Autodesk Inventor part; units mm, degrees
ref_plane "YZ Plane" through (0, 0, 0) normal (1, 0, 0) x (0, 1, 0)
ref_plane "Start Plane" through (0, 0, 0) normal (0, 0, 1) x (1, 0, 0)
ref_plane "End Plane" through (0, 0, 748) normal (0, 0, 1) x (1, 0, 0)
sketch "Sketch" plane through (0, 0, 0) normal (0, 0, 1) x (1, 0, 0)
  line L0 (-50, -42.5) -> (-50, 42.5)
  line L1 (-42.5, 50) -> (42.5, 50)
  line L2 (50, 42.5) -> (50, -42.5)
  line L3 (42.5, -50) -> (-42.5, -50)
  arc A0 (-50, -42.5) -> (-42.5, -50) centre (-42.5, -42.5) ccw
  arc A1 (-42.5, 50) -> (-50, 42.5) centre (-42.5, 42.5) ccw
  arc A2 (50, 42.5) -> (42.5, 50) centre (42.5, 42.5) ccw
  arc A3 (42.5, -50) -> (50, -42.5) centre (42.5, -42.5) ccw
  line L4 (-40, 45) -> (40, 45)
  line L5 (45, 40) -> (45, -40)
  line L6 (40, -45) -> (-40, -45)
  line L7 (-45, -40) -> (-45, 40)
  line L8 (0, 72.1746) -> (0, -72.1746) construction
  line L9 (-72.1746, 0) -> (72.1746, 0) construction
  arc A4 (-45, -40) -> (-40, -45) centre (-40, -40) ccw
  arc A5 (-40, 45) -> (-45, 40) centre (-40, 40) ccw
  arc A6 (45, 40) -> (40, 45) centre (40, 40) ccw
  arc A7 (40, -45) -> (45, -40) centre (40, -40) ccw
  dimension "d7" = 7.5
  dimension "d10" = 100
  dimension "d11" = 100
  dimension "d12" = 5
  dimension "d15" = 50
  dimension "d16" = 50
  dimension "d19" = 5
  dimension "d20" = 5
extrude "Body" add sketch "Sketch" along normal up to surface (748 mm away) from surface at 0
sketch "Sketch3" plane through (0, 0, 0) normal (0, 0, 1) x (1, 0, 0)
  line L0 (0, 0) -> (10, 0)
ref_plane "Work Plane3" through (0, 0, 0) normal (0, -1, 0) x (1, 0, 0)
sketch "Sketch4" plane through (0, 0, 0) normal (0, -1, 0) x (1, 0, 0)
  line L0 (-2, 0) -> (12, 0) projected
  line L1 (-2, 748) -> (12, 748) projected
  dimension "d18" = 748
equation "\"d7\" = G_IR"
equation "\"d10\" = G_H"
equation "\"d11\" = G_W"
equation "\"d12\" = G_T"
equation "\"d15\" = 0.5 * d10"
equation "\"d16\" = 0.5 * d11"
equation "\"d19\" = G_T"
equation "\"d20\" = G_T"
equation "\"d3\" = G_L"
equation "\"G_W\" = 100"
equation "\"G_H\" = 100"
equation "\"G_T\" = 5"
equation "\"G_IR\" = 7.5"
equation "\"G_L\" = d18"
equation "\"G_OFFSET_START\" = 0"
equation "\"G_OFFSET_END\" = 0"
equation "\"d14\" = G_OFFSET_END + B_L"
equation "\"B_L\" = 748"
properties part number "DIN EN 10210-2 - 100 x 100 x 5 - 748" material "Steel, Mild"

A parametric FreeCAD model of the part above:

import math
import FreeCAD as App
import Part
import Sketcher
from FreeCAD import Vector

doc = App.newDocument("Part")
body = doc.addObject("PartDesign::Body", "Body")

# Sketch on XY plane
sketch1 = body.newObject("Sketcher::SketchObject", "Sketch")
sketch1.AttachmentSupport = (doc.getObject("XY_Plane"), [""])
sketch1.MapMode = "FlatFace"
sketch1.addGeometry(Part.LineSegment(Vector(-50, 42.5, 0), Vector(-50, -42.5, 0)), False)
sketch1.addGeometry(Part.ArcOfCircle(Part.Circle(Vector(-42.5, -42.5, 0), Vector(0, 0, 1), 7.5), math.radians(180), math.radians(270)), False)
sketch1.addGeometry(Part.LineSegment(Vector(-42.5, -50, 0), Vector(42.5, -50, 0)), False)
sketch1.addGeometry(Part.ArcOfCircle(Part.Circle(Vector(42.5, -42.5, 0), Vector(0, 0, 1), 7.5), math.radians(-90), math.radians(0)), False)
sketch1.addGeometry(Part.LineSegment(Vector(50, -42.5, 0), Vector(50, 42.5, 0)), False)
sketch1.addGeometry(Part.ArcOfCircle(Part.Circle(Vector(42.5, 42.5, 0), Vector(0, 0, 1), 7.5), math.radians(0), math.radians(90)), False)
sketch1.addGeometry(Part.LineSegment(Vector(42.5, 50, 0), Vector(-42.5, 50, 0)), False)
sketch1.addGeometry(Part.ArcOfCircle(Part.Circle(Vector(-42.5, 42.5, 0), Vector(0, 0, 1), 7.5), math.radians(90), math.radians(180)), False)
sketch1.addGeometry(Part.ArcOfCircle(Part.Circle(Vector(-40, 40, 0), Vector(0, 0, 1), 5), math.radians(90), math.radians(180)), False)
sketch1.addGeometry(Part.LineSegment(Vector(-40, 45, 0), Vector(40, 45, 0)), False)
sketch1.addGeometry(Part.ArcOfCircle(Part.Circle(Vector(40, 40, 0), Vector(0, 0, 1), 5), math.radians(0), math.radians(90)), False)
sketch1.addGeometry(Part.LineSegment(Vector(45, 40, 0), Vector(45, -40, 0)), False)
sketch1.addGeometry(Part.ArcOfCircle(Part.Circle(Vector(40, -40, 0), Vector(0, 0, 1), 5), math.radians(-90), math.radians(0)), False)
sketch1.addGeometry(Part.LineSegment(Vector(40, -45, 0), Vector(-40, -45, 0)), False)
sketch1.addGeometry(Part.ArcOfCircle(Part.Circle(Vector(-40, -40, 0), Vector(0, 0, 1), 5), math.radians(180), math.radians(270)), False)
sketch1.addGeometry(Part.LineSegment(Vector(-45, -40, 0), Vector(-45, 40, 0)), False)
sketch1.addConstraint(Sketcher.Constraint("Tangent", 0, 2, 1, 1))
sketch1.addConstraint(Sketcher.Constraint("Tangent", 1, 2, 2, 1))
sketch1.addConstraint(Sketcher.Constraint("Tangent", 2, 2, 3, 1))
sketch1.addConstraint(Sketcher.Constraint("Tangent", 3, 2, 4, 1))
sketch1.addConstraint(Sketcher.Constraint("Tangent", 4, 2, 5, 1))
sketch1.addConstraint(Sketcher.Constraint("Tangent", 5, 2, 6, 1))
sketch1.addConstraint(Sketcher.Constraint("Tangent", 6, 2, 7, 1))
sketch1.addConstraint(Sketcher.Constraint("Tangent", 7, 2, 0, 1))
sketch1.addConstraint(Sketcher.Constraint("Tangent", 8, 1, 9, 1))
sketch1.addConstraint(Sketcher.Constraint("Tangent", 9, 2, 10, 2))
sketch1.addConstraint(Sketcher.Constraint("Tangent", 10, 1, 11, 1))
sketch1.addConstraint(Sketcher.Constraint("Tangent", 11, 2, 12, 2))
sketch1.addConstraint(Sketcher.Constraint("Tangent", 12, 1, 13, 1))
sketch1.addConstraint(Sketcher.Constraint("Tangent", 13, 2, 14, 2))
sketch1.addConstraint(Sketcher.Constraint("Tangent", 14, 1, 15, 1))
sketch1.addConstraint(Sketcher.Constraint("Tangent", 15, 2, 8, 2))
sketch1.addConstraint(Sketcher.Constraint("Vertical", 0))
sketch1.addConstraint(Sketcher.Constraint("Horizontal", 2))
sketch1.addConstraint(Sketcher.Constraint("Vertical", 4))
sketch1.addConstraint(Sketcher.Constraint("Horizontal", 6))
sketch1.addConstraint(Sketcher.Constraint("Horizontal", 9))
sketch1.addConstraint(Sketcher.Constraint("Vertical", 11))
sketch1.addConstraint(Sketcher.Constraint("Horizontal", 13))
sketch1.addConstraint(Sketcher.Constraint("Vertical", 15))
sketch1.addConstraint(Sketcher.Constraint("Equal", 1, 3))
sketch1.addConstraint(Sketcher.Constraint("Equal", 3, 5))
sketch1.addConstraint(Sketcher.Constraint("Equal", 5, 7))
sketch1.addConstraint(Sketcher.Constraint("Equal", 8, 10))
sketch1.addConstraint(Sketcher.Constraint("Equal", 10, 12))
sketch1.addConstraint(Sketcher.Constraint("Equal", 12, 14))
sketch1.addConstraint(Sketcher.Constraint("Symmetric", 1, 3, 5, 3, -1, 1))
sketch1.addConstraint(Sketcher.Constraint("Symmetric", 8, 3, 12, 3, -1, 1))
sketch1.addConstraint(Sketcher.Constraint("Equal", 6, 0))
sketch1.addConstraint(Sketcher.Constraint("Equal", 13, 11))
sketch1.addConstraint(Sketcher.Constraint("Radius", 8, 5.0))
sketch1.addConstraint(Sketcher.Constraint("Radius", 1, 7.5))
sketch1.addConstraint(Sketcher.Constraint("DistanceX", 0, 2, -1, 1, 50.0))
sketch1.addConstraint(Sketcher.Constraint("DistanceY", 8, 1, 6, 2, 5.0))
pad1 = body.newObject("PartDesign::Pad", "Pad")
pad1.Profile = sketch1
pad1.Length = 748

doc.recompute()
